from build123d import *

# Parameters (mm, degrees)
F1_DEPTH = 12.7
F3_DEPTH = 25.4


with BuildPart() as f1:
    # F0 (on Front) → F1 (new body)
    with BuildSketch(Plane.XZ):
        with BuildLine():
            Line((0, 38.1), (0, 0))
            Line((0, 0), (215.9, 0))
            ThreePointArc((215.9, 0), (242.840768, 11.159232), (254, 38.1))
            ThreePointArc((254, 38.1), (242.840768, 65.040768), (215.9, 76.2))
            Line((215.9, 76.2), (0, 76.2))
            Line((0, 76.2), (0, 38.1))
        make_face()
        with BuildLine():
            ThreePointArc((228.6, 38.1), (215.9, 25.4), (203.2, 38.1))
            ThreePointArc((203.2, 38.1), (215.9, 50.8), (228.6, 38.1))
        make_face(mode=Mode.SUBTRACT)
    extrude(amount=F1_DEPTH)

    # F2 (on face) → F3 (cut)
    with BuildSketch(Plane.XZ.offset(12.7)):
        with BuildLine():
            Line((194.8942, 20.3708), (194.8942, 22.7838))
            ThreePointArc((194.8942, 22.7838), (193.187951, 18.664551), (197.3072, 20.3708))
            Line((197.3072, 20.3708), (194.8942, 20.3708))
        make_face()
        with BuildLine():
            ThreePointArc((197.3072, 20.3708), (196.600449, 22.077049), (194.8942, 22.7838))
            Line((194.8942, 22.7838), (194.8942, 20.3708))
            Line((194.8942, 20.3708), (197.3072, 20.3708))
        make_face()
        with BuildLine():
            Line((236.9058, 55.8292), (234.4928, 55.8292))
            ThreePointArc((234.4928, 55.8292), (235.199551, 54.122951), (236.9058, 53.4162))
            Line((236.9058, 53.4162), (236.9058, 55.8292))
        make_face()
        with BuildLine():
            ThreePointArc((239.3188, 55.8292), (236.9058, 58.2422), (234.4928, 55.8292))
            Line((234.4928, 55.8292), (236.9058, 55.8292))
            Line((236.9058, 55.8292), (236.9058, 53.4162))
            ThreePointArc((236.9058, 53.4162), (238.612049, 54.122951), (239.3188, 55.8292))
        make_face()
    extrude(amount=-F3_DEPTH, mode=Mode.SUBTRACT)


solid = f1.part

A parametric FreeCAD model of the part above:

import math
import FreeCAD as App
import Part
import Sketcher

V = App.Vector
Q = App.Units.Quantity

doc = App.newDocument("Part")
body = doc.addObject("PartDesign::Body", "Body")

# Sketch on XZ plane
sketch1 = body.newObject("Sketcher::SketchObject", "Sketch")
sketch1.AttachmentSupport = (doc.getObject("XZ_Plane"), [""])
sketch1.MapMode = "FlatFace"
sketch1.addGeometry([
    Part.LineSegment(V(0, 0, 0), V(216, 0, 0)),  # 0
    Part.ArcOfCircle(Part.Circle(V(216, 38, 0), V(0, 0, 1), 38), math.radians(-90), math.radians(0)),  # 1
    Part.ArcOfCircle(Part.Circle(V(216, 38, 0), V(0, 0, 1), 38), math.radians(0), math.radians(90)),  # 2
    Part.LineSegment(V(216, 76, 0), V(0, 76, 0)),  # 3
    Part.LineSegment(V(0, 76, 0), V(0, 0, 0)),  # 4
    Part.Circle(V(216, 38, 0), V(0, 0, 1), 13),  # 5
], False)
sketch1.addConstraint([
    Sketcher.Constraint("Tangent", 0, 2, 1, 1),
    Sketcher.Constraint("Tangent", 1, 2, 2, 1),
    Sketcher.Constraint("Tangent", 2, 2, 3, 1),
    Sketcher.Constraint("Coincident", 3, 2, 4, 1),
    Sketcher.Constraint("Coincident", 4, 2, 0, 1),
    Sketcher.Constraint("Horizontal", 0),
    Sketcher.Constraint("Horizontal", 3),
    Sketcher.Constraint("Vertical", 4),
    Sketcher.Constraint("Coincident", 4, 2, -1, 1),
    Sketcher.Constraint("Coincident", 5, 3, 1, 3),
    Sketcher.Constraint("Equal", 1, 2),
    Sketcher.Constraint("Horizontal", 5, 3, 1, 2),
    Sketcher.Constraint("Diameter", 5, Q("1 in")),
    Sketcher.Constraint("Radius", 1, Q("1.5 in")),
    Sketcher.Constraint("DistanceX", 0, 1, 0, 2, Q("8.5 in")),
])
pad1 = body.newObject("PartDesign::Pad", "Pad")
pad1.Profile = sketch1
pad1.Length = Q("0.5 in")

# Sketch on XZ plane
sketch2 = body.newObject("Sketcher::SketchObject", "Sketch001")
sketch2.AttachmentSupport = (doc.getObject("XZ_Plane"), [""])
sketch2.MapMode = "FlatFace"
sketch2.AttachmentOffset = App.Placement(V(0, 0, 0.5 * 25.4), App.Rotation())
sketch2.addGeometry([
    Part.ArcOfCircle(Part.Circle(V(194.9, 20.4, 0), V(0, 0, 1), 2.4), math.radians(90), math.radians(360)),  # 0
    Part.ArcOfCircle(Part.Circle(V(194.9, 20.4, 0), V(0, 0, 1), 2.4), math.radians(0), math.radians(90)),  # 1
    Part.ArcOfCircle(Part.Circle(V(236.9, 55.8, 0), V(0, 0, 1), 2.4), math.radians(180), math.radians(270)),  # 2
    Part.ArcOfCircle(Part.Circle(V(236.9, 55.8, 0), V(0, 0, 1), 2.4), math.radians(-90), math.radians(0)),  # 3
    Part.ArcOfCircle(Part.Circle(V(236.9, 55.8, 0), V(0, 0, 1), 2.4), math.radians(0), math.radians(180)),  # 4
], False)
sketch2.addConstraint([
    Sketcher.Constraint("Tangent", 0, 1, 1, 2),
    Sketcher.Constraint("Coincident", 1, 1, 0, 2),
    Sketcher.Constraint("Tangent", 2, 2, 3, 1),
    Sketcher.Constraint("Tangent", 3, 2, 4, 1),
    Sketcher.Constraint("Tangent", 4, 2, 2, 1),
    Sketcher.Constraint("Equal", 1, 2),
    Sketcher.Constraint("Horizontal", 0, 3, 1, 1),
    Sketcher.Constraint("Horizontal", 4, 3, 3, 2),
    Sketcher.Constraint("Horizontal", 3, 2, 4, 2),
    Sketcher.Constraint("Vertical", 1, 3, 0, 1),
    Sketcher.Constraint("Vertical", 4, 3, 2, 2),
    Sketcher.Constraint("Radius", 0, Q("0.095 in")),
    Sketcher.Constraint("DistanceX", -1, 1, 0, 3, Q("7.673 in")),
    Sketcher.Constraint("DistanceY", -1, 1, 0, 3, Q("0.802 in")),
    Sketcher.Constraint("DistanceX", -1, 1, 2, 3, Q("9.327 in")),
    Sketcher.Constraint("DistanceY", -1, 1, 2, 3, Q("2.198 in")),
])
pocket1 = body.newObject("PartDesign::Pocket", "Pocket")
pocket1.Profile = sketch2
pocket1.Length = Q("1 in")

doc.recompute()
